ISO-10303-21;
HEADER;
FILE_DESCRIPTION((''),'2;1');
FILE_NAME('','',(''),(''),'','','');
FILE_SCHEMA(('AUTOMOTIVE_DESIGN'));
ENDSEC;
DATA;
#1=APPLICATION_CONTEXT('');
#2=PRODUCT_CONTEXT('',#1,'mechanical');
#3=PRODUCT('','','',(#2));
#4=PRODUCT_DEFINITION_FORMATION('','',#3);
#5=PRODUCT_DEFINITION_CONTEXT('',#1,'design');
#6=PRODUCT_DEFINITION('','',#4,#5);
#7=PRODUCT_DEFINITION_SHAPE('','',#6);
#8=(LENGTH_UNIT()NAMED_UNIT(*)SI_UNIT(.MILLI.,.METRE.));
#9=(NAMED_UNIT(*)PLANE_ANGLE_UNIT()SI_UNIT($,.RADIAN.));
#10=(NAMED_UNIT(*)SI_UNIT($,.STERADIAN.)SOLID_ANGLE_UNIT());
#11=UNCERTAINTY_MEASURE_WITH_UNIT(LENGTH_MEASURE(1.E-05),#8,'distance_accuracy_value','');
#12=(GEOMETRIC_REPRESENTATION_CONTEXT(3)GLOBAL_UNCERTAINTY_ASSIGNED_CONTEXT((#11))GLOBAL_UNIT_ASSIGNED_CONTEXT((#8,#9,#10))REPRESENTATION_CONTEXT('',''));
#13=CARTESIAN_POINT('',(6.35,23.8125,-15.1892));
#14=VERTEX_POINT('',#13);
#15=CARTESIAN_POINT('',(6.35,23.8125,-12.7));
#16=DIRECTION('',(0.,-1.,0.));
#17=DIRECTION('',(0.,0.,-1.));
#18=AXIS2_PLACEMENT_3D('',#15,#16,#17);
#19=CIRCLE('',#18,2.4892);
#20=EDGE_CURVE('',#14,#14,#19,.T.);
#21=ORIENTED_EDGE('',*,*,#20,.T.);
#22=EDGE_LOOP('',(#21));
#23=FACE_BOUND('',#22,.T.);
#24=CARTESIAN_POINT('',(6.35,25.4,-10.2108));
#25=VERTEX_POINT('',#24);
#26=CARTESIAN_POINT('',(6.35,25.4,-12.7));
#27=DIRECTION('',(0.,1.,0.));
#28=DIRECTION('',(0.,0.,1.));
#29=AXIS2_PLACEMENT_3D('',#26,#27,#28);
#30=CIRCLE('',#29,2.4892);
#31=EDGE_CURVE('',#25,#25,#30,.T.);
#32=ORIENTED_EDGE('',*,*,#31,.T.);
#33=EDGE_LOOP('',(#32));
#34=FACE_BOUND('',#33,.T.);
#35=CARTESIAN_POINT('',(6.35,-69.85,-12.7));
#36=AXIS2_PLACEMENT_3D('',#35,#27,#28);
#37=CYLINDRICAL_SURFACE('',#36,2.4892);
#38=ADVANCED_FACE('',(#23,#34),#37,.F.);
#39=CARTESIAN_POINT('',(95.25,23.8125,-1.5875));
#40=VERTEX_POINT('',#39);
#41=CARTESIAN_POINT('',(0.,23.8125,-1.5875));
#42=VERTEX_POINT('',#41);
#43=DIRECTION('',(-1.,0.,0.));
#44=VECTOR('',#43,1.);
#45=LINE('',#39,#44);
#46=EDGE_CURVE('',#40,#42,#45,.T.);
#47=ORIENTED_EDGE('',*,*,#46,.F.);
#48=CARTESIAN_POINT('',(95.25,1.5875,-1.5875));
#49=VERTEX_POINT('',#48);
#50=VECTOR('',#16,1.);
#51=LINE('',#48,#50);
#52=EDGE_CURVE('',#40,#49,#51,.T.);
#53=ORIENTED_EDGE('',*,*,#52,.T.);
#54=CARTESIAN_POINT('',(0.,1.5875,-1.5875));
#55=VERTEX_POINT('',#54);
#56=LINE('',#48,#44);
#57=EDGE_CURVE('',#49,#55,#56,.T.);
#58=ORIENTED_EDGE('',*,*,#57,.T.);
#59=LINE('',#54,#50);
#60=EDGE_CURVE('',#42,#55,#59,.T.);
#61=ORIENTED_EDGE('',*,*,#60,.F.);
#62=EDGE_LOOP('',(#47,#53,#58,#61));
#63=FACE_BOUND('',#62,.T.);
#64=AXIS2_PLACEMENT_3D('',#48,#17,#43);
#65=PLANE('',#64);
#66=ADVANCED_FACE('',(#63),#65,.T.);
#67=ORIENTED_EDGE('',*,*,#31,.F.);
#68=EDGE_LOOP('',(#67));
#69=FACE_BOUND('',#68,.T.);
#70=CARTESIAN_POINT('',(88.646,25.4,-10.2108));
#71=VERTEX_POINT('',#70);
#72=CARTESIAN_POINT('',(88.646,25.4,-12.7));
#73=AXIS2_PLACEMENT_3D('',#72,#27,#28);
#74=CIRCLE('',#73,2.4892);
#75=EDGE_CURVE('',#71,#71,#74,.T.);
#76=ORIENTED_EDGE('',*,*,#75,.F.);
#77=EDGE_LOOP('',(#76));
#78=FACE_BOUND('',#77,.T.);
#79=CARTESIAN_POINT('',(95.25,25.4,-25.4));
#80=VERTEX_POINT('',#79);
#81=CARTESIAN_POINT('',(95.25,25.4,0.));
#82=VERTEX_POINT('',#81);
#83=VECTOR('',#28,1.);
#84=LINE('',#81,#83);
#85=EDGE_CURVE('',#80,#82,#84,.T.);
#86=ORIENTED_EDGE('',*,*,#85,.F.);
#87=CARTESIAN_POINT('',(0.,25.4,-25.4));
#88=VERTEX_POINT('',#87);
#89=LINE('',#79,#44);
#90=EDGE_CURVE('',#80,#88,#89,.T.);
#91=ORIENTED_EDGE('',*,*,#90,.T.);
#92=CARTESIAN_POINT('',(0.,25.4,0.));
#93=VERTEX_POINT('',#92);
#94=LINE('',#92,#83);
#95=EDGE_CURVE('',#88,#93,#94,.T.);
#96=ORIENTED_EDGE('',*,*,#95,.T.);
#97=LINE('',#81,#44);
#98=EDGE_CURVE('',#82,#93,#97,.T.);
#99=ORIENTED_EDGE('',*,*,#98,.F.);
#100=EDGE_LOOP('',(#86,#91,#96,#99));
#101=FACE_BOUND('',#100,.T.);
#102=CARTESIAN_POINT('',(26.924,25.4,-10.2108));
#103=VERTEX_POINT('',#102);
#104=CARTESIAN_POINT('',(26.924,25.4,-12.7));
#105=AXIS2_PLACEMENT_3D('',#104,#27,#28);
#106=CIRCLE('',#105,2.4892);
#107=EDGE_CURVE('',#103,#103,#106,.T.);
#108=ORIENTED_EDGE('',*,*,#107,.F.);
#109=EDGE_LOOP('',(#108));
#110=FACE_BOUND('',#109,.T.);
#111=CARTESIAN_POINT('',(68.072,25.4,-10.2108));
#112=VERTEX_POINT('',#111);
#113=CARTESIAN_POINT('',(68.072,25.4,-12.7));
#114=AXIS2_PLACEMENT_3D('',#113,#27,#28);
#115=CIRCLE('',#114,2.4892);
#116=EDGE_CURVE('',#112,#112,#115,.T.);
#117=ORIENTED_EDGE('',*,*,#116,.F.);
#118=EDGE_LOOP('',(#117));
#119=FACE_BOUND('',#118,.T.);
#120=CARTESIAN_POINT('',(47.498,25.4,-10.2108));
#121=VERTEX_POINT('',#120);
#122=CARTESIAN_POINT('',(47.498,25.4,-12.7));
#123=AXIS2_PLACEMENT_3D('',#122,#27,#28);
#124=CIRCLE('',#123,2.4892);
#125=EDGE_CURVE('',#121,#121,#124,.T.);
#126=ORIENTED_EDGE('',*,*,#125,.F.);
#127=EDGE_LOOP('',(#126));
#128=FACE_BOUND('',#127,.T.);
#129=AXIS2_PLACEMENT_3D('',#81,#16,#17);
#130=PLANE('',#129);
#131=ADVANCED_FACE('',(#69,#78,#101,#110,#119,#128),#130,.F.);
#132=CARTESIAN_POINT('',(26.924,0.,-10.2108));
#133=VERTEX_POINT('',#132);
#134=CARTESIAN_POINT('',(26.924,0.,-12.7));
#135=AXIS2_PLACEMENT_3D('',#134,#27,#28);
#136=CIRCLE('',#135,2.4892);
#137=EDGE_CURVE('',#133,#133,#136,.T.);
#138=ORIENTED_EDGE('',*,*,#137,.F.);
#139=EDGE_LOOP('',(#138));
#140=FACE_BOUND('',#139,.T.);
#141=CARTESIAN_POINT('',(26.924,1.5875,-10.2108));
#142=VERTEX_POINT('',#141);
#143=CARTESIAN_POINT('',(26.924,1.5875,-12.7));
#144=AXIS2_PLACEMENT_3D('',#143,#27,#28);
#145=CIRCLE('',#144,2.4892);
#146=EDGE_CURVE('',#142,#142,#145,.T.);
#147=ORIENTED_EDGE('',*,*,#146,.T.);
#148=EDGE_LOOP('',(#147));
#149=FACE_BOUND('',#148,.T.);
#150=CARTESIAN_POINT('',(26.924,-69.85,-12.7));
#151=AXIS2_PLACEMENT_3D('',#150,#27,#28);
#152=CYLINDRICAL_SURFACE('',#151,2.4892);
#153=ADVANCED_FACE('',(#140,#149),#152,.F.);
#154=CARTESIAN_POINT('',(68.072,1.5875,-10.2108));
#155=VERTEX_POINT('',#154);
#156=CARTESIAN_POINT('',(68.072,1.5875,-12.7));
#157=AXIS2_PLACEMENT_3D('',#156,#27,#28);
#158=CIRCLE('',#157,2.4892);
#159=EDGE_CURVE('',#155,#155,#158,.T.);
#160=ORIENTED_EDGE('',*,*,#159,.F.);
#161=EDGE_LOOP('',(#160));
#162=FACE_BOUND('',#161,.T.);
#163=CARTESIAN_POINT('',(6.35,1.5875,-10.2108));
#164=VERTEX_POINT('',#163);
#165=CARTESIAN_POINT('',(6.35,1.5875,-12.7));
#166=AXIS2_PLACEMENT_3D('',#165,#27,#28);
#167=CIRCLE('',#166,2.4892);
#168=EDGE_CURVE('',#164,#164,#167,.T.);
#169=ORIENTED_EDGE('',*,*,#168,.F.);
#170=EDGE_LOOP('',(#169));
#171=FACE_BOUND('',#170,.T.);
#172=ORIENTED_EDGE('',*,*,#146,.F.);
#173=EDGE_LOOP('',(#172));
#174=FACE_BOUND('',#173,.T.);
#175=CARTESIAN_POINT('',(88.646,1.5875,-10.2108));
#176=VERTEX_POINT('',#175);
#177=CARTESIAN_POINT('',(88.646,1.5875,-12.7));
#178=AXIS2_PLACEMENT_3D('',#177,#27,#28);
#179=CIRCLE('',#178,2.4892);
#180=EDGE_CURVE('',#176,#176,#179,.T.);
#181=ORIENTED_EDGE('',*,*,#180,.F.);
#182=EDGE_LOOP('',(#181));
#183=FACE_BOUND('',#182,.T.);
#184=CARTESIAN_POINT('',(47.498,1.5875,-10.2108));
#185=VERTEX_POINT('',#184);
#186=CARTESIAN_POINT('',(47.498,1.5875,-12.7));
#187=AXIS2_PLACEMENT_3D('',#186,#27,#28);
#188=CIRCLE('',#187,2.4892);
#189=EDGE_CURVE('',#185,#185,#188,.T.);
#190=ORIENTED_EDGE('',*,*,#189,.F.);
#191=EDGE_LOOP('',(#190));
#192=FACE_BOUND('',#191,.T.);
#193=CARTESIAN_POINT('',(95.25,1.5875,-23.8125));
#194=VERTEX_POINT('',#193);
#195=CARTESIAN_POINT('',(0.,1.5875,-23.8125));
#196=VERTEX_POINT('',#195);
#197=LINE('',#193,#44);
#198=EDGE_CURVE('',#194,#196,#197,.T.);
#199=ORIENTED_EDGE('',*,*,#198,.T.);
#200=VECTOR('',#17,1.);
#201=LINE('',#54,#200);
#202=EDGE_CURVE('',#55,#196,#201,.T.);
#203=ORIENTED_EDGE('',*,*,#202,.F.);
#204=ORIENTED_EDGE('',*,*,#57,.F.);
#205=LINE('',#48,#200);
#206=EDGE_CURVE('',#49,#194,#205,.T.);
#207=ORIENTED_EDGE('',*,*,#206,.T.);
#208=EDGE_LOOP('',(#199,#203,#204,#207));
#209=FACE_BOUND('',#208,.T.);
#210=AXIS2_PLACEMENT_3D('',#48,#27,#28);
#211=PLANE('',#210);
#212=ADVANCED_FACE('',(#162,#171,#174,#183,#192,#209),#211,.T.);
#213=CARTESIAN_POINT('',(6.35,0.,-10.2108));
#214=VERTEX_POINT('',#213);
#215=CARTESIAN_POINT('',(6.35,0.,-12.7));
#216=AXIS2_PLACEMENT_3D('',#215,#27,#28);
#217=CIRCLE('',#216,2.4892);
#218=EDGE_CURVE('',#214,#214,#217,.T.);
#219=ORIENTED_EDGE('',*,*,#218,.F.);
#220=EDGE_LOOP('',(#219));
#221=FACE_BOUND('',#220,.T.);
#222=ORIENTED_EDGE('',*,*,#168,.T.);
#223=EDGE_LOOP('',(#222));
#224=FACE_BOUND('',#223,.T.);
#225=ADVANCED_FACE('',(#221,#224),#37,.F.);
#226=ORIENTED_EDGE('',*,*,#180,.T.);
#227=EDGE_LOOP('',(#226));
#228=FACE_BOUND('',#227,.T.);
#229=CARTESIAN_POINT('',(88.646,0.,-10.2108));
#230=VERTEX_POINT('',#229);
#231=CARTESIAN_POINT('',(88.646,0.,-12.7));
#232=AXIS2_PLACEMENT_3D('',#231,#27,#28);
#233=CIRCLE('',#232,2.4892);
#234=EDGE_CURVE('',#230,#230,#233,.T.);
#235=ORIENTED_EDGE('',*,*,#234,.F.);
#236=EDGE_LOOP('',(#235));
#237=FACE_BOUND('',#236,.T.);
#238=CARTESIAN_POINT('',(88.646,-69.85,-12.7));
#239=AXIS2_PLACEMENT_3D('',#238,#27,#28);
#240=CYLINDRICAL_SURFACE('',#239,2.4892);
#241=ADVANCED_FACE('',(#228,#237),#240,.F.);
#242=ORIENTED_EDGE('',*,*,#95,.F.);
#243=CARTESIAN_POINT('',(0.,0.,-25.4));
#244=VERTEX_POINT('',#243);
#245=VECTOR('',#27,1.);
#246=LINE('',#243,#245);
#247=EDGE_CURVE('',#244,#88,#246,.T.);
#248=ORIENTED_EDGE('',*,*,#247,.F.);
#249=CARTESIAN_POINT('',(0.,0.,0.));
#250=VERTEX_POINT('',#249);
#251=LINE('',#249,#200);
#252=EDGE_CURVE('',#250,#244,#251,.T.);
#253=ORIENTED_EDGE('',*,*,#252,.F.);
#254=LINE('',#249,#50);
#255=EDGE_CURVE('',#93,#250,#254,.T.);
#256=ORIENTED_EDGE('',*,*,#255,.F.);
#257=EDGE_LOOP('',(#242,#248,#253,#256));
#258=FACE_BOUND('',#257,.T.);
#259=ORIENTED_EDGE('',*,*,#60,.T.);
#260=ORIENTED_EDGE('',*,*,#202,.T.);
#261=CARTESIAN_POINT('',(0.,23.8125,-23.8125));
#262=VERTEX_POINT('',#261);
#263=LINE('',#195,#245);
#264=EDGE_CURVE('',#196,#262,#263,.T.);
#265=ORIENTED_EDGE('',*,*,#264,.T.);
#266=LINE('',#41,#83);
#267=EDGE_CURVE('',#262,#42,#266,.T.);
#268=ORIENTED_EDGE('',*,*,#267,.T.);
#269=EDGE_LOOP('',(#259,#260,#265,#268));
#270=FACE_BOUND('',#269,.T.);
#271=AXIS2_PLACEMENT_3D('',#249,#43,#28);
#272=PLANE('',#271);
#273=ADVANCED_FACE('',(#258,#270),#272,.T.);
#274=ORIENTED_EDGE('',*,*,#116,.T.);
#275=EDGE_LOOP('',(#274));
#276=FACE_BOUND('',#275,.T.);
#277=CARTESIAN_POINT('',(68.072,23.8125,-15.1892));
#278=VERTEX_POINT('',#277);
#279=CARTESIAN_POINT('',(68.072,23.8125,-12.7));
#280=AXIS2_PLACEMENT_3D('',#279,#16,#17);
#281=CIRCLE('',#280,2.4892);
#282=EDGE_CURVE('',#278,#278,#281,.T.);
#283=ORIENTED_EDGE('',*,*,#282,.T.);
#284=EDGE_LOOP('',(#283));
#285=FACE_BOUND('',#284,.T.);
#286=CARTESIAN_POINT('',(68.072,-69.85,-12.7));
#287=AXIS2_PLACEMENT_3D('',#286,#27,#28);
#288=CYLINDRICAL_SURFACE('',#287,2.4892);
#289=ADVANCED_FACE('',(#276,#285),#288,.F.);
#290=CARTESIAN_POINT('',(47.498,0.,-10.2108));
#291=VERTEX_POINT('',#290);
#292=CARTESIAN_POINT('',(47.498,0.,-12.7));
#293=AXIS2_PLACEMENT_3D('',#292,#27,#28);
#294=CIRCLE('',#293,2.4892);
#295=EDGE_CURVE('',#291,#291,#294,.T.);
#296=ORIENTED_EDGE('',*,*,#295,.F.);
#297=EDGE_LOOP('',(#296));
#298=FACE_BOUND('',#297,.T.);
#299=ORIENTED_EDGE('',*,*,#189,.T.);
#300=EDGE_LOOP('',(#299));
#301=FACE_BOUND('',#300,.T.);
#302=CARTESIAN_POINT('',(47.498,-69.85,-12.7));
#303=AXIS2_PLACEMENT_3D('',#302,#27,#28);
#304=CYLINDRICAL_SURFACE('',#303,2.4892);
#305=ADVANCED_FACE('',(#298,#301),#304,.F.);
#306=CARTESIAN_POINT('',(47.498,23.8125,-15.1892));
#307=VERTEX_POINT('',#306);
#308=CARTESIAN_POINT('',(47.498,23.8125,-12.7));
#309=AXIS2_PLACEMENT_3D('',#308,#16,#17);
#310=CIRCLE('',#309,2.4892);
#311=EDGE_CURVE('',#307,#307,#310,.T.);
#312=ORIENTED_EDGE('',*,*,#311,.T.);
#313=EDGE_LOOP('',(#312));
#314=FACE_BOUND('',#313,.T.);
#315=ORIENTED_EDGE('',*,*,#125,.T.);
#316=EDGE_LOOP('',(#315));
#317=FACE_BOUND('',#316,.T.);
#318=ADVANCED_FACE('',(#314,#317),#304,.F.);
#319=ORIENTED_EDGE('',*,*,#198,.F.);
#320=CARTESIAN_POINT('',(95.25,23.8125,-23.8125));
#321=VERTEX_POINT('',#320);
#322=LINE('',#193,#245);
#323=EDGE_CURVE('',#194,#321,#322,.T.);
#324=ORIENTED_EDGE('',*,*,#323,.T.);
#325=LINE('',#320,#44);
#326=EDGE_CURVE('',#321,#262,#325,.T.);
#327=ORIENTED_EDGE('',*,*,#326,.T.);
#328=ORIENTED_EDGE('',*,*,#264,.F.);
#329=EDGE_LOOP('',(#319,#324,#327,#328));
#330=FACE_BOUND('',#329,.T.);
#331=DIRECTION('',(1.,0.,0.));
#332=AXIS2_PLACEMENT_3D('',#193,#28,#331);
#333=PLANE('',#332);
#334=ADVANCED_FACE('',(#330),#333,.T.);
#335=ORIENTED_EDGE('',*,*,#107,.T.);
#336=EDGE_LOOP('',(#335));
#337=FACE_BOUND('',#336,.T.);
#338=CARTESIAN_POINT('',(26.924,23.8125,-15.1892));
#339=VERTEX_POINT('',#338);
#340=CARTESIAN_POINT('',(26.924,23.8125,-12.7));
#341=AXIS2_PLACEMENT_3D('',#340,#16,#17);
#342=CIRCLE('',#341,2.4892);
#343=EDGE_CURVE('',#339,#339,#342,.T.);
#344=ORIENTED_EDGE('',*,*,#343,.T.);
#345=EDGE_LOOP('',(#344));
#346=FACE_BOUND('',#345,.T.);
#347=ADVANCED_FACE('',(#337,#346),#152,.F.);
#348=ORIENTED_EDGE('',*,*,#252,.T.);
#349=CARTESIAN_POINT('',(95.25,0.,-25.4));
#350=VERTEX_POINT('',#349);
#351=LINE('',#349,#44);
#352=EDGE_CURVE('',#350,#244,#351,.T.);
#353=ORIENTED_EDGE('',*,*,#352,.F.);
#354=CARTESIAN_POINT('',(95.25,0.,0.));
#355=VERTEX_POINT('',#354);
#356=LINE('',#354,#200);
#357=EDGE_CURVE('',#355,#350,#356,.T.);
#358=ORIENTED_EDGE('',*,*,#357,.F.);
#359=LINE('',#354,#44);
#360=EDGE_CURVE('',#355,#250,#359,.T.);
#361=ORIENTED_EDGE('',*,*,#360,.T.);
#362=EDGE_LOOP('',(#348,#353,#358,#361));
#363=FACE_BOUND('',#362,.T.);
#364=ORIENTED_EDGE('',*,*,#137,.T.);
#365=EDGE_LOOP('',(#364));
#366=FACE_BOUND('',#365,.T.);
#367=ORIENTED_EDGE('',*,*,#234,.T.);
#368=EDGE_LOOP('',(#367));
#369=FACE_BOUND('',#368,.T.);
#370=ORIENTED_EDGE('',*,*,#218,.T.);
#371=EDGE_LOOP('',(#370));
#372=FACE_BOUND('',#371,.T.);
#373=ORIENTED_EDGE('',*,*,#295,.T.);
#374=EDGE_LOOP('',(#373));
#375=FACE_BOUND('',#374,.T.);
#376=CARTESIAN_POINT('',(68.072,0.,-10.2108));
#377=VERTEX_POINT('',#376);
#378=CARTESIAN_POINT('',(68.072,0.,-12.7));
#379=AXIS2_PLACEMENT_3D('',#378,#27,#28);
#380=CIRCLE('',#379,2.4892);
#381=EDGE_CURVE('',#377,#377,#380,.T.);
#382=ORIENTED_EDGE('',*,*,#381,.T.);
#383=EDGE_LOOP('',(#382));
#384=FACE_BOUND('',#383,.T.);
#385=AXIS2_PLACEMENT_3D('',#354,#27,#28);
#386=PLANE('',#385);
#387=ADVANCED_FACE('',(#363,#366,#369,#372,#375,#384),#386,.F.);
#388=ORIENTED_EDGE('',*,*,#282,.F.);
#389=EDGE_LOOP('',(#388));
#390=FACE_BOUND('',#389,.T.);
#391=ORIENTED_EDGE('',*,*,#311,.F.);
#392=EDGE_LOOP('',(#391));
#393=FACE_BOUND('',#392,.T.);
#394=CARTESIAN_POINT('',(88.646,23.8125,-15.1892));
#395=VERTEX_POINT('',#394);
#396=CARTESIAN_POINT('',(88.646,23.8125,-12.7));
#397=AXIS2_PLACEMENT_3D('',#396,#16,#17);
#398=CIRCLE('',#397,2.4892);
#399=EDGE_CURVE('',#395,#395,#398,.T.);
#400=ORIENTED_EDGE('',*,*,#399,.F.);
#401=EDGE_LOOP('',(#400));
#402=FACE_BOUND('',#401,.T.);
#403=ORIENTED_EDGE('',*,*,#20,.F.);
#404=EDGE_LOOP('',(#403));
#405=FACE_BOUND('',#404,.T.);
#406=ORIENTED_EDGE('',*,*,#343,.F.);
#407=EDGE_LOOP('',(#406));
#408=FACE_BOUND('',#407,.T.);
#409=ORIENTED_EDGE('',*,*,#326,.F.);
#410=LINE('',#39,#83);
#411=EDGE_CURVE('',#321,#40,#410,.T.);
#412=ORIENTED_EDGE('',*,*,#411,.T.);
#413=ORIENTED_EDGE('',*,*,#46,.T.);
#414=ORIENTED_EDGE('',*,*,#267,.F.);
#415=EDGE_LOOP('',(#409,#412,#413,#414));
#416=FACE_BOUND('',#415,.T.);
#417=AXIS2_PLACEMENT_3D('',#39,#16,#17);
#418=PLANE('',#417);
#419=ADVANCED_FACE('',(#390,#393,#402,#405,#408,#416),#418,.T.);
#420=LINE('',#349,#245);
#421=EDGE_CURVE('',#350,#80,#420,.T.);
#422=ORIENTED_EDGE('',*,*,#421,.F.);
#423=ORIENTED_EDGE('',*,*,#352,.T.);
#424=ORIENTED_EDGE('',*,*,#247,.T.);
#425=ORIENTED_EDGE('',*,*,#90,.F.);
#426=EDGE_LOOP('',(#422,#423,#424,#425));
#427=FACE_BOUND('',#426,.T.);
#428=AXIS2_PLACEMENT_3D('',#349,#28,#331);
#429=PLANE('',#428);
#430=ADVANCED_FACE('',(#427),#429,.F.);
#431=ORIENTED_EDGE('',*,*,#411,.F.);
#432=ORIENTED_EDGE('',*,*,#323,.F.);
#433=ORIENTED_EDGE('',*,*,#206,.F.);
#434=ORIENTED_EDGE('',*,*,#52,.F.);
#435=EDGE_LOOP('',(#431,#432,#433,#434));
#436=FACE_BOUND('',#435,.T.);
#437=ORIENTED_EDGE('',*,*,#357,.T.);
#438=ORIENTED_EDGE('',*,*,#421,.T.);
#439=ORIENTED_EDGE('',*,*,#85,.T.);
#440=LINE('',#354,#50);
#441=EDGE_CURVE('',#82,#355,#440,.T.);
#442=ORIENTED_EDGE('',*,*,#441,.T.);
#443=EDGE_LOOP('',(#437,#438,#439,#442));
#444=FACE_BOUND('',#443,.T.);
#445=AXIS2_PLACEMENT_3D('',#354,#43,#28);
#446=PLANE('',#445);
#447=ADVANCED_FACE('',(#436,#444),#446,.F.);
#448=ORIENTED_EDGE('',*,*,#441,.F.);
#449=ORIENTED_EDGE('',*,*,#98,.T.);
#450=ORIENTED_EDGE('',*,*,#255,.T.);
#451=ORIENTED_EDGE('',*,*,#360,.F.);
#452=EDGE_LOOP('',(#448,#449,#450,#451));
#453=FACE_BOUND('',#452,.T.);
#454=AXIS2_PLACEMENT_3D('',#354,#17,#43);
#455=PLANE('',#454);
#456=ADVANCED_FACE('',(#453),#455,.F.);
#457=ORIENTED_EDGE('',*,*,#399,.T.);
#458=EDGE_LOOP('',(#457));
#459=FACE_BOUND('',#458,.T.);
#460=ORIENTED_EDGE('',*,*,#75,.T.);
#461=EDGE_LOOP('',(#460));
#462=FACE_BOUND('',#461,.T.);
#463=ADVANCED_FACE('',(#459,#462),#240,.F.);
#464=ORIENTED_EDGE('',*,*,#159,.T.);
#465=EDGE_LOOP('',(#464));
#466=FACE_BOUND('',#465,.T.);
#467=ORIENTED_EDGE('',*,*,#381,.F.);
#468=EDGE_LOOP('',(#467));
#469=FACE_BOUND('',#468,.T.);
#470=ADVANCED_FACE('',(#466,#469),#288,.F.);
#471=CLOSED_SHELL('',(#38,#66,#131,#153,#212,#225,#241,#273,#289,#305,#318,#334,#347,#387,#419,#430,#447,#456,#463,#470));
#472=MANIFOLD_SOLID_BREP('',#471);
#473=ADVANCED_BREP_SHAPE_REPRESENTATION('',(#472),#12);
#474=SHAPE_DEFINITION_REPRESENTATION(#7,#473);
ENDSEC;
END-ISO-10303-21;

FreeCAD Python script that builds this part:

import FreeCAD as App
import Part
import Sketcher
Q = App.Units.Quantity


def add_polygon(sketch, points):
    """Adds a closed chain of lines whose ends are joined by coincident constraints."""
    first, n = sketch.GeometryCount, len(points)
    for a, b in zip(points, points[1:] + points[:1]):
        sketch.addGeometry(Part.LineSegment(App.Vector(*a, 0), App.Vector(*b, 0)), False)
    for i in range(n):
        sketch.addConstraint(Sketcher.Constraint("Coincident", first + i, 2, first + (i + 1) % n, 1))

doc = App.newDocument("Part")
body = doc.addObject("PartDesign::Body", "Body")

# Sketch on YZ plane
sketch1 = body.newObject("Sketcher::SketchObject", "Sketch")
sketch1.AttachmentSupport = (doc.getObject("YZ_Plane"), [""])
sketch1.MapMode = "FlatFace"
add_polygon(sketch1, [(25, 0), (0, 0), (0, -25), (25, -25)])  # lines 0-3
add_polygon(sketch1, [(2, -24), (2, -2), (24, -2), (24, -24)])  # lines 4-7
sketch1.addConstraint([
    Sketcher.Constraint("Horizontal", 0),
    Sketcher.Constraint("Vertical", 1),
    Sketcher.Constraint("Horizontal", 2),
    Sketcher.Constraint("Vertical", 3),
    Sketcher.Constraint("Vertical", 4),
    Sketcher.Constraint("Horizontal", 5),
    Sketcher.Constraint("Vertical", 6),
    Sketcher.Constraint("Horizontal", 7),
    Sketcher.Constraint("Coincident", 0, 2, -1, 1),
    Sketcher.Constraint("Equal", 2, 1),
    Sketcher.Constraint("Equal", 7, 4),
    Sketcher.Constraint("DistanceX", 0, 2, 0, 1, Q("1 in")),
    Sketcher.Constraint("DistanceX", 5, 1, 5, 2, Q("0.875 in")),
    Sketcher.Constraint("DistanceX", -1, 1, 4, 2, Q("0.0625 in")),
    Sketcher.Constraint("DistanceY", 4, 2, -1, 1, Q("0.0625 in")),
])
pad1 = body.newObject("PartDesign::Pad", "Pad")
pad1.Profile = sketch1
pad1.Length = Q("3.75 in")

# Sketch on XZ plane
sketch2 = body.newObject("Sketcher::SketchObject", "Sketch001")
sketch2.AttachmentSupport = (doc.getObject("XZ_Plane"), [""])
sketch2.MapMode = "FlatFace"
sketch2.AttachmentOffset = App.Placement(App.Vector(0, 0, -1 * 25.4), App.Rotation())
sketch2.addGeometry([
    Part.Circle(App.Vector(6.3, -12.7, 0), App.Vector(0, 0, 1), 2.5),  # 0
    Part.Circle(App.Vector(26.9, -12.7, 0), App.Vector(0, 0, 1), 2.5),  # 1
    Part.Circle(App.Vector(47.5, -12.7, 0), App.Vector(0, 0, 1), 2.5),  # 2
    Part.Circle(App.Vector(68.1, -12.7, 0), App.Vector(0, 0, 1), 2.5),  # 3
    Part.Circle(App.Vector(88.6, -12.7, 0), App.Vector(0, 0, 1), 2.5),  # 4
], False)
sketch2.addConstraint([
    Sketcher.Constraint("Equal", 0, 1),
    Sketcher.Constraint("Equal", 1, 2),
    Sketcher.Constraint("Equal", 2, 3),
    Sketcher.Constraint("Equal", 3, 4),
    Sketcher.Constraint("Horizontal", 0, 3, 1, 3),
    Sketcher.Constraint("Horizontal", 1, 3, 2, 3),
    Sketcher.Constraint("Horizontal", 2, 3, 3, 3),
    Sketcher.Constraint("Horizontal", 3, 3, 4, 3),
    Sketcher.Constraint("Diameter", 0, Q("0.196 in")),
    Sketcher.Constraint("DistanceY", 0, 3, -1, 1, Q("0.5 in")),
    Sketcher.Constraint("DistanceX", -1, 1, 0, 3, Q("0.25 in")),
    Sketcher.Constraint("DistanceX", -1, 1, 1, 3, Q("1.06 in")),
    Sketcher.Constraint("DistanceX", -1, 1, 2, 3, Q("1.87 in")),
    Sketcher.Constraint("DistanceX", -1, 1, 3, 3, Q("2.68 in")),
    Sketcher.Constraint("DistanceX", -1, 1, 4, 3, Q("3.49 in")),
])
pocket1 = body.newObject("PartDesign::Pocket", "Pocket")
pocket1.Profile = sketch2
pocket1.Length = Q("3.75 in")
pocket1.Reversed = True

doc.recompute()
